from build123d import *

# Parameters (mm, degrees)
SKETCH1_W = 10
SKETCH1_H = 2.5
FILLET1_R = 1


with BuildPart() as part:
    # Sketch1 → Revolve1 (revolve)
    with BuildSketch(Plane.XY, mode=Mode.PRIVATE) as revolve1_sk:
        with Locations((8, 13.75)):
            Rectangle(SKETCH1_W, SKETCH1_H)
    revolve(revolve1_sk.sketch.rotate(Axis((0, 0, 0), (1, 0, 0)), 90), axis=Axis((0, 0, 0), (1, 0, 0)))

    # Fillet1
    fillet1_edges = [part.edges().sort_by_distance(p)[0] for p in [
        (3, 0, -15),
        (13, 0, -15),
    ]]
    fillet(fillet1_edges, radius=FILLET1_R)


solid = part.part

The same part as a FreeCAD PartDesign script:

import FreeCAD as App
import Part
import Sketcher


def edges_at(feature, points):
    """Names of the edges that pass closest to the given points."""
    edges = feature.Shape.Edges
    near = lambda p: min(range(len(edges)), key=lambda i: edges[i].distToShape(Part.Vertex(*p))[0])
    return sorted({f"Edge{near(p) + 1}" for p in points})


def add_polygon(sketch, points):
    """Adds a closed chain of lines whose ends are joined by coincident constraints."""
    first, n = sketch.GeometryCount, len(points)
    for a, b in zip(points, points[1:] + points[:1]):
        sketch.addGeometry(Part.LineSegment(App.Vector(*a, 0), App.Vector(*b, 0)), False)
    for i in range(n):
        sketch.addConstraint(Sketcher.Constraint("Coincident", first + i, 2, first + (i + 1) % n, 1))

doc = App.newDocument("Part")
body = doc.addObject("PartDesign::Body", "Body")

sketch1 = doc.addObject("Sketcher::SketchObject", "Sketch")
body.addObject(sketch1)
sketch1.AttachmentSupport = (doc.XY_Plane, [""])
sketch1.MapMode = "FlatFace"
add_polygon(sketch1, [(3, 15), (3, 12.5), (13, 12.5), (13, 15)])
sketch1.addConstraint([
    Sketcher.Constraint("Vertical", 0),
    Sketcher.Constraint("Horizontal", 1),
    Sketcher.Constraint("Vertical", 2),
    Sketcher.Constraint("Horizontal", 3),
    Sketcher.Constraint("DistanceX", 1, 1, 1, 2, 10.0),
    Sketcher.Constraint("DistanceY", 0, 2, 0, 1, 2.5),
    Sketcher.Constraint("DistanceX", -1, 1, 0, 2, 3.0),
    Sketcher.Constraint("DistanceY", -1, 1, 2, 2, 15.0),
])
revolution = doc.addObject("PartDesign::Revolution", "Revolution")
body.addObject(revolution)
revolution.Profile = sketch1
revolution.ReferenceAxis = (sketch1, ["H_Axis"])
revolution.Angle = 360
doc.recompute()

fillet = doc.addObject("PartDesign::Fillet", "Fillet")
body.addObject(fillet)
fillet.Base = (revolution, edges_at(revolution, [(3, 0, -15), (13, 0, -15)]))
fillet.Radius = 1

doc.recompute()
